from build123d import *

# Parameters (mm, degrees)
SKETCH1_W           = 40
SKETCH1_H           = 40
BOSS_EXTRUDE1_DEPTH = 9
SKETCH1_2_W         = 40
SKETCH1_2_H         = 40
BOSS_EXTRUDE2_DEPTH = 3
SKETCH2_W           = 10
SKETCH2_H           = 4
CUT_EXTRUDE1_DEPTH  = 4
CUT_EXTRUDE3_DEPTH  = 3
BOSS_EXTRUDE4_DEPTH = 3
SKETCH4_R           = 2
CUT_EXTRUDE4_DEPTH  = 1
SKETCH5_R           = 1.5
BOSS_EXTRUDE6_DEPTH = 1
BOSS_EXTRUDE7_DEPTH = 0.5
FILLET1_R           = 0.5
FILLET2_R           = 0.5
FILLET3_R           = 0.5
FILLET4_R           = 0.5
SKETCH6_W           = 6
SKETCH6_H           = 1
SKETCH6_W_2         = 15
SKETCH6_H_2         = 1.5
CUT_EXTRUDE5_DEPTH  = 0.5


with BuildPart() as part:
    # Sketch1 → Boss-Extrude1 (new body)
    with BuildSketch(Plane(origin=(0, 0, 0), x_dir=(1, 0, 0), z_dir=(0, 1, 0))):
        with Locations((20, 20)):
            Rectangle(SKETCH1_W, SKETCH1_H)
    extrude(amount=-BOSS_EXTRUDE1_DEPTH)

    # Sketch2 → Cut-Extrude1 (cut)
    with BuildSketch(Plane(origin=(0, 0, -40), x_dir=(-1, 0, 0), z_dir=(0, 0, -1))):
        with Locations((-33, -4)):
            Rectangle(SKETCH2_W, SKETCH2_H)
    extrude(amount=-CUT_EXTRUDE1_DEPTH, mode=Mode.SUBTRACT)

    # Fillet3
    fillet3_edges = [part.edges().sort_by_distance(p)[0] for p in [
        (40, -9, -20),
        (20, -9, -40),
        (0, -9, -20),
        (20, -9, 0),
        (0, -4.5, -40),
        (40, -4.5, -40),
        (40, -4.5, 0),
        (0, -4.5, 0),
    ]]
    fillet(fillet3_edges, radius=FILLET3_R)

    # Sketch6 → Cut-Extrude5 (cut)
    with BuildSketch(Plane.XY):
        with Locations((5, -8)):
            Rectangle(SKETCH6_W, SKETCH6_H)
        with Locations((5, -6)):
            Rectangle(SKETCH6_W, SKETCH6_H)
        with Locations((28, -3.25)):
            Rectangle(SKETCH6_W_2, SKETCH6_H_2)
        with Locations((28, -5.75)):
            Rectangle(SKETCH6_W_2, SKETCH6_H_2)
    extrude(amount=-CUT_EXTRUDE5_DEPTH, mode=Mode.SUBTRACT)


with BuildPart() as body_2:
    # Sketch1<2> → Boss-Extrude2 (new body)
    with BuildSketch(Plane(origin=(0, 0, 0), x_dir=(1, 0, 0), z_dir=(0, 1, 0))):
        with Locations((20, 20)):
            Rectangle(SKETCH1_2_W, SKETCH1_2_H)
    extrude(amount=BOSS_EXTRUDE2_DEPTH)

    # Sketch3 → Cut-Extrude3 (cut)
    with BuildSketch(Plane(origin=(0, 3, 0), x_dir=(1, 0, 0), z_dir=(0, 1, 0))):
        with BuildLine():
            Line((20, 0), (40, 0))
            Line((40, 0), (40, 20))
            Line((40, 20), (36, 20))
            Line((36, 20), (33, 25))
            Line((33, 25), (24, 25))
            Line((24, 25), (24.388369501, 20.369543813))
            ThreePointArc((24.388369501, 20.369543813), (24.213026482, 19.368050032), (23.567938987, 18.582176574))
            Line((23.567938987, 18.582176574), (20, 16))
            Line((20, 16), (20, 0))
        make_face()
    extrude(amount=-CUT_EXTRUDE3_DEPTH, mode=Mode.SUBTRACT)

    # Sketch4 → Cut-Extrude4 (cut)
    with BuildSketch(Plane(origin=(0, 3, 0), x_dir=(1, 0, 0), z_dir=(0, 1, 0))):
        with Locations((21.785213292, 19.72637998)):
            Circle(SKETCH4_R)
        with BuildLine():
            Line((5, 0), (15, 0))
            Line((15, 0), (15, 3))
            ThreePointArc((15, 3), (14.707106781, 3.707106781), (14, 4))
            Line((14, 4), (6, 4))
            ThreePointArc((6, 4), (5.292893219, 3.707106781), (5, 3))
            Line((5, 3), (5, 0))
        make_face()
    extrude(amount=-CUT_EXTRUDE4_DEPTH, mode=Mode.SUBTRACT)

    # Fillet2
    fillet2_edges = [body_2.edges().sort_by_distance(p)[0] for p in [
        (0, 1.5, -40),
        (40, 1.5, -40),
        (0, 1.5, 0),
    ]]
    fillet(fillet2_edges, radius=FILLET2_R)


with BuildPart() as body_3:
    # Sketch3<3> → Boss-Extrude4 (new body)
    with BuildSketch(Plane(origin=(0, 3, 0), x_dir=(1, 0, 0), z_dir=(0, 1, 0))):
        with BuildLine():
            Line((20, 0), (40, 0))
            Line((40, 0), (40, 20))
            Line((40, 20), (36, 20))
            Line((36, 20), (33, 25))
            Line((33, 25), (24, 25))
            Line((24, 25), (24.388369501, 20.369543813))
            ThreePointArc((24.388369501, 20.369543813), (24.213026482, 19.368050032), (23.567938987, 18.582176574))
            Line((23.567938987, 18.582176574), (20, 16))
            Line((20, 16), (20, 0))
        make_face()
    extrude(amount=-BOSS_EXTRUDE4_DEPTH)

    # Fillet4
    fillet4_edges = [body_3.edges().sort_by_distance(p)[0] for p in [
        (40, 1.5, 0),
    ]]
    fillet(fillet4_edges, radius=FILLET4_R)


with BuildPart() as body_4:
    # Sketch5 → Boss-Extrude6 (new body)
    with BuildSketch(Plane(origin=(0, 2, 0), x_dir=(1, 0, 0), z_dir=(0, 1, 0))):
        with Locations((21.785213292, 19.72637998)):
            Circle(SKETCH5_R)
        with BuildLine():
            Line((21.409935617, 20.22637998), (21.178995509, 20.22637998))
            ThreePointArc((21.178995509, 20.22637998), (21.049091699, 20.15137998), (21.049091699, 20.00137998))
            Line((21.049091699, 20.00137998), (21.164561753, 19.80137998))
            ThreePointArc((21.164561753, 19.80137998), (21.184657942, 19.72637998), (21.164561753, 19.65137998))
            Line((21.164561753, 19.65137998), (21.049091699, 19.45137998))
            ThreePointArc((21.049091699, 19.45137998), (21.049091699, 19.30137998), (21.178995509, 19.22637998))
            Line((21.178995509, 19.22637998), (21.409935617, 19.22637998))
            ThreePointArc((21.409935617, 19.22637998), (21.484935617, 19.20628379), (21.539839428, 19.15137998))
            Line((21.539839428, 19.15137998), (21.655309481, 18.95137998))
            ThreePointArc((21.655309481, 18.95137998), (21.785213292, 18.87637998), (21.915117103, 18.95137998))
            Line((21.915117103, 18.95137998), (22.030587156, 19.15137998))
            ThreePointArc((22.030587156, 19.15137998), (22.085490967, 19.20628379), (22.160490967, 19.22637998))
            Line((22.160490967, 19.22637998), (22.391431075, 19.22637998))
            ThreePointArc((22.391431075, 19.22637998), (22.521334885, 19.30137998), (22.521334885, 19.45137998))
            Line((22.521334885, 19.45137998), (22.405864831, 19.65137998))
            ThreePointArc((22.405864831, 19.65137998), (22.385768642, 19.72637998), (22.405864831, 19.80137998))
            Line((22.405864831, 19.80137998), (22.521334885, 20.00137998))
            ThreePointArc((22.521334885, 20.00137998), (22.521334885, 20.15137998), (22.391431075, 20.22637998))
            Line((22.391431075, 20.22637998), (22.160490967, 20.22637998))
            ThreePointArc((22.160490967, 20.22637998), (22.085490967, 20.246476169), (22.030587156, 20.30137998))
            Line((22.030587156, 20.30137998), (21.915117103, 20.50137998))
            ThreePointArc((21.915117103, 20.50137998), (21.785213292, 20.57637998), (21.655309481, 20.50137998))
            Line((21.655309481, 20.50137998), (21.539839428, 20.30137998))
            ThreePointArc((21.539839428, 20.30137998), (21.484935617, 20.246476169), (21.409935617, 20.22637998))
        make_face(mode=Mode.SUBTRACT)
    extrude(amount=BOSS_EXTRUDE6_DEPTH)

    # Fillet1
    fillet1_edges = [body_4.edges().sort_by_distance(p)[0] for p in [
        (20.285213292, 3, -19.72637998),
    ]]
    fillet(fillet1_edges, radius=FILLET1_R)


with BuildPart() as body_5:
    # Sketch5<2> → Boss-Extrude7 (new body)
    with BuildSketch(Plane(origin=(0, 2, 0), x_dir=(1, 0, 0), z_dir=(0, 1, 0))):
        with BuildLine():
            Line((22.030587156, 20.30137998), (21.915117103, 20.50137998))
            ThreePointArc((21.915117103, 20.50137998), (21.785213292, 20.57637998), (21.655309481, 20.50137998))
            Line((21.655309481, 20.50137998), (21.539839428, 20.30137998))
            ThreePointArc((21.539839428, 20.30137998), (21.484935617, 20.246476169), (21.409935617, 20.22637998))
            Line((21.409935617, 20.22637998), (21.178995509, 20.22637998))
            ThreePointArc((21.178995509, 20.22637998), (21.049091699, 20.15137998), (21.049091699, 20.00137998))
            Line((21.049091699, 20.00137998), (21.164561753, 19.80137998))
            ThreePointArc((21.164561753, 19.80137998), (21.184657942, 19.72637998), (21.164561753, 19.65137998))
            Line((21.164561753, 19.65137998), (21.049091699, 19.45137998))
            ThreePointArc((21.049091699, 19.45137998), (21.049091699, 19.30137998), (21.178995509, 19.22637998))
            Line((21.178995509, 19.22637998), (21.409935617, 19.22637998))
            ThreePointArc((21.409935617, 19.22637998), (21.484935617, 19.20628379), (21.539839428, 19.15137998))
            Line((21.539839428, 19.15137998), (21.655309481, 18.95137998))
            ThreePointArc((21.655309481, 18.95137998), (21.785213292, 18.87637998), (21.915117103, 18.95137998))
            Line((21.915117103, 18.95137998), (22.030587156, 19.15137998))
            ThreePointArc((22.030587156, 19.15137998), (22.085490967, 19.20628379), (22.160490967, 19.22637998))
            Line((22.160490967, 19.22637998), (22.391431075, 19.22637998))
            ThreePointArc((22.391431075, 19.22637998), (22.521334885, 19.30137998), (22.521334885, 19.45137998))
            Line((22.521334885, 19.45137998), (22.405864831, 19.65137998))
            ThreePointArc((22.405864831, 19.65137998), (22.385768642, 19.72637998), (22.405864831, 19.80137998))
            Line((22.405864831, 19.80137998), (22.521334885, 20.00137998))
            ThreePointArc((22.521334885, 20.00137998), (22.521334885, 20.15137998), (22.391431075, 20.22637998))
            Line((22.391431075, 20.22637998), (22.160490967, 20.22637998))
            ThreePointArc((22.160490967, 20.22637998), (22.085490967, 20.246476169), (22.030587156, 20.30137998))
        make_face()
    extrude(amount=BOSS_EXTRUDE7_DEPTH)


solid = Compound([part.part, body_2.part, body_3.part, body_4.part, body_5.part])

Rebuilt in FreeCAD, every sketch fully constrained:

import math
import FreeCAD as App
import Part
import Sketcher
Q = App.Units.Quantity


def edges_at(feature, points):
    """Names of the edges that pass closest to the given points."""
    edges = feature.Shape.Edges
    near = lambda p: min(range(len(edges)), key=lambda i: edges[i].distToShape(Part.Vertex(*p))[0])
    return sorted({f"Edge{near(p) + 1}" for p in points})

doc = App.newDocument("Part")
body = doc.addObject("PartDesign::Body", "Body")

sketch1 = doc.addObject("Sketcher::SketchObject", "Sketch")
body.addObject(sketch1)
sketch1.AttachmentSupport = (doc.XZ_Plane, [""])
sketch1.MapMode = "FlatFace"
sketch1.addGeometry([
    Part.LineSegment(App.Vector(0, -40, 0), App.Vector(0, 0, 0)),
    Part.LineSegment(App.Vector(0, 0, 0), App.Vector(40, 0, 0)),
    Part.LineSegment(App.Vector(40, 0, 0), App.Vector(40, -40, 0)),
    Part.LineSegment(App.Vector(40, -40, 0), App.Vector(0, -40, 0)),
], False)
sketch1.addConstraint([
    Sketcher.Constraint("Coincident", 0, 2, 1, 1),
    Sketcher.Constraint("Coincident", 1, 2, 2, 1),
    Sketcher.Constraint("Coincident", 2, 2, 3, 1),
    Sketcher.Constraint("Coincident", 3, 2, 0, 1),
    Sketcher.Constraint("Vertical", 0),
    Sketcher.Constraint("Horizontal", 1),
    Sketcher.Constraint("Vertical", 2),
    Sketcher.Constraint("Horizontal", 3),
    Sketcher.Constraint("Coincident", 0, 2, -1, 1),
    Sketcher.Constraint("Equal", 3, 0),
    Sketcher.Constraint("DistanceX", 1, 1, 1, 2, Q("40 mm")),
])
pad1 = doc.addObject("PartDesign::Pad", "Pad")
body.addObject(pad1)
pad1.Profile = sketch1
pad1.Length = 9

sketch2 = doc.addObject("Sketcher::SketchObject", "Sketch001")
body.addObject(sketch2)
sketch2.AttachmentSupport = (doc.XY_Plane, [""])
sketch2.MapMode = "FlatFace"
sketch2.AttachmentOffset = App.Placement(App.Vector(0, 0, -40), App.Rotation())
sketch2.addGeometry([
    Part.LineSegment(App.Vector(38, -2, 0), App.Vector(38, -6, 0)),
    Part.LineSegment(App.Vector(38, -6, 0), App.Vector(28, -6, 0)),
    Part.LineSegment(App.Vector(28, -6, 0), App.Vector(28, -2, 0)),
    Part.LineSegment(App.Vector(28, -2, 0), App.Vector(38, -2, 0)),
], False)
sketch2.addConstraint([
    Sketcher.Constraint("Coincident", 0, 2, 1, 1),
    Sketcher.Constraint("Coincident", 1, 2, 2, 1),
    Sketcher.Constraint("Coincident", 2, 2, 3, 1),
    Sketcher.Constraint("Coincident", 3, 2, 0, 1),
    Sketcher.Constraint("Vertical", 0),
    Sketcher.Constraint("Horizontal", 1),
    Sketcher.Constraint("Vertical", 2),
    Sketcher.Constraint("Horizontal", 3),
    Sketcher.Constraint("DistanceX", 1, 2, 1, 1, Q("10 mm")),
    Sketcher.Constraint("DistanceY", 0, 2, 0, 1, Q("4 mm")),
    Sketcher.Constraint("DistanceX", -1, 1, 0, 2, Q("38 mm")),
    Sketcher.Constraint("DistanceY", 0, 2, -1, 1, Q("6 mm")),
])
pocket1 = doc.addObject("PartDesign::Pocket", "Pocket")
body.addObject(pocket1)
pocket1.Profile = sketch2
pocket1.Length = 4
pocket1.Reversed = True
doc.recompute()

fillet = doc.addObject("PartDesign::Fillet", "Fillet")
body.addObject(fillet)
fillet.Base = (pocket1, edges_at(pocket1, [
    (40, -9, -20),
    (20, -9, -40),
    (0, -9, -20),
    (20, -9, 0),
    (0, -4.5, -40),
    (40, -4.5, -40),
    (40, -4.5, 0),
    (0, -4.5, 0),
]))
fillet.Radius = 0.5

sketch3 = doc.addObject("Sketcher::SketchObject", "Sketch002")
body.addObject(sketch3)
sketch3.AttachmentSupport = (doc.XY_Plane, [""])
sketch3.MapMode = "FlatFace"
sketch3.addGeometry([
    Part.LineSegment(App.Vector(2, -7.5, 0), App.Vector(2, -8.5, 0)),
    Part.LineSegment(App.Vector(2, -8.5, 0), App.Vector(8, -8.5, 0)),
    Part.LineSegment(App.Vector(8, -8.5, 0), App.Vector(8, -7.5, 0)),
    Part.LineSegment(App.Vector(8, -7.5, 0), App.Vector(2, -7.5, 0)),
    Part.LineSegment(App.Vector(2, -5.5, 0), App.Vector(2, -6.5, 0)),
    Part.LineSegment(App.Vector(2, -6.5, 0), App.Vector(8, -6.5, 0)),
    Part.LineSegment(App.Vector(8, -6.5, 0), App.Vector(8, -5.5, 0)),
    Part.LineSegment(App.Vector(8, -5.5, 0), App.Vector(2, -5.5, 0)),
    Part.LineSegment(App.Vector(20.5, -2.5, 0), App.Vector(20.5, -4, 0)),
    Part.LineSegment(App.Vector(20.5, -4, 0), App.Vector(35.5, -4, 0)),
    Part.LineSegment(App.Vector(35.5, -4, 0), App.Vector(35.5, -2.5, 0)),
    Part.LineSegment(App.Vector(35.5, -2.5, 0), App.Vector(20.5, -2.5, 0)),
    Part.LineSegment(App.Vector(20.5, -5, 0), App.Vector(20.5, -6.5, 0)),
    Part.LineSegment(App.Vector(20.5, -6.5, 0), App.Vector(35.5, -6.5, 0)),
    Part.LineSegment(App.Vector(35.5, -6.5, 0), App.Vector(35.5, -5, 0)),
    Part.LineSegment(App.Vector(35.5, -5, 0), App.Vector(20.5, -5, 0)),
], False)
sketch3.addConstraint([
    Sketcher.Constraint("Coincident", 0, 2, 1, 1),
    Sketcher.Constraint("Coincident", 1, 2, 2, 1),
    Sketcher.Constraint("Coincident", 2, 2, 3, 1),
    Sketcher.Constraint("Coincident", 3, 2, 0, 1),
    Sketcher.Constraint("Coincident", 4, 2, 5, 1),
    Sketcher.Constraint("Coincident", 5, 2, 6, 1),
    Sketcher.Constraint("Coincident", 6, 2, 7, 1),
    Sketcher.Constraint("Coincident", 7, 2, 4, 1),
    Sketcher.Constraint("Coincident", 8, 2, 9, 1),
    Sketcher.Constraint("Coincident", 9, 2, 10, 1),
    Sketcher.Constraint("Coincident", 10, 2, 11, 1),
    Sketcher.Constraint("Coincident", 11, 2, 8, 1),
    Sketcher.Constraint("Coincident", 12, 2, 13, 1),
    Sketcher.Constraint("Coincident", 13, 2, 14, 1),
    Sketcher.Constraint("Coincident", 14, 2, 15, 1),
    Sketcher.Constraint("Coincident", 15, 2, 12, 1),
    Sketcher.Constraint("Vertical", 0),
    Sketcher.Constraint("Horizontal", 1),
    Sketcher.Constraint("Vertical", 2),
    Sketcher.Constraint("Horizontal", 3),
    Sketcher.Constraint("Vertical", 4),
    Sketcher.Constraint("Horizontal", 5),
    Sketcher.Constraint("Vertical", 6),
    Sketcher.Constraint("Horizontal", 7),
    Sketcher.Constraint("Vertical", 8),
    Sketcher.Constraint("Horizontal", 9),
    Sketcher.Constraint("Vertical", 10),
    Sketcher.Constraint("Horizontal", 11),
    Sketcher.Constraint("Vertical", 12),
    Sketcher.Constraint("Horizontal", 13),
    Sketcher.Constraint("Vertical", 14),
    Sketcher.Constraint("Horizontal", 15),
    Sketcher.Constraint("Horizontal", 5, 2, 12, 2),
    Sketcher.Constraint("Vertical", 3, 2, 4, 2),
    Sketcher.Constraint("Vertical", 2, 2, 5, 2),
    Sketcher.Constraint("Vertical", 11, 2, 12, 2),
    Sketcher.Constraint("Vertical", 10, 2, 13, 2),
    Sketcher.Constraint("Equal", 2, 4),
    Sketcher.Constraint("Equal", 10, 12),
    Sketcher.Constraint("DistanceX", 1, 1, 1, 2, Q("6 mm")),
    Sketcher.Constraint("DistanceX", 9, 1, 9, 2, Q("15 mm")),
    Sketcher.Constraint("DistanceY", 0, 2, 0, 1, Q("1 mm")),
    Sketcher.Constraint("DistanceY", 8, 2, 8, 1, Q("1.5 mm")),
    Sketcher.Constraint("DistanceX", -1, 1, 0, 2, Q("2 mm")),
    Sketcher.Constraint("DistanceY", 8, 2, -1, 1, Q("4 mm")),
    Sketcher.Constraint("DistanceY", 14, 2, -1, 1, Q("5 mm")),
    Sketcher.Constraint("DistanceY", 3, 2, 4, 2, Q("1 mm")),
    Sketcher.Constraint("DistanceX", -1, 1, 8, 2, Q("20.5 mm")),
])
pocket2 = doc.addObject("PartDesign::Pocket", "Pocket001")
body.addObject(pocket2)
pocket2.Profile = sketch3
pocket2.Length = 0.5
body2 = doc.addObject("PartDesign::Body", "Body001")

sketch4 = doc.addObject("Sketcher::SketchObject", "Sketch003")
body2.addObject(sketch4)
sketch4.AttachmentSupport = (doc.getObject("XZ_Plane001"), [""])
sketch4.MapMode = "FlatFace"
sketch4.addGeometry([
    Part.LineSegment(App.Vector(0, -40, 0), App.Vector(0, 0, 0)),
    Part.LineSegment(App.Vector(0, 0, 0), App.Vector(40, 0, 0)),
    Part.LineSegment(App.Vector(40, 0, 0), App.Vector(40, -40, 0)),
    Part.LineSegment(App.Vector(40, -40, 0), App.Vector(0, -40, 0)),
], False)
sketch4.addConstraint([
    Sketcher.Constraint("Coincident", 0, 2, 1, 1),
    Sketcher.Constraint("Coincident", 1, 2, 2, 1),
    Sketcher.Constraint("Coincident", 2, 2, 3, 1),
    Sketcher.Constraint("Coincident", 3, 2, 0, 1),
    Sketcher.Constraint("Vertical", 0),
    Sketcher.Constraint("Horizontal", 1),
    Sketcher.Constraint("Vertical", 2),
    Sketcher.Constraint("Horizontal", 3),
    Sketcher.Constraint("Coincident", 0, 2, -1, 1),
    Sketcher.Constraint("Equal", 3, 0),
    Sketcher.Constraint("DistanceX", 1, 1, 1, 2, Q("40 mm")),
])
pad2 = doc.addObject("PartDesign::Pad", "Pad001")
body2.addObject(pad2)
pad2.Profile = sketch4
pad2.Length = 3
pad2.Reversed = True

sketch5 = doc.addObject("Sketcher::SketchObject", "Sketch004")
body2.addObject(sketch5)
sketch5.AttachmentSupport = (doc.getObject("XZ_Plane001"), [""])
sketch5.MapMode = "FlatFace"
sketch5.AttachmentOffset = App.Placement(App.Vector(0, 0, -3), App.Rotation())
sketch5.addGeometry([
    Part.LineSegment(App.Vector(20, 0, 0), App.Vector(40, 0, 0)),
    Part.LineSegment(App.Vector(40, 0, 0), App.Vector(40, -20, 0)),
    Part.LineSegment(App.Vector(40, -20, 0), App.Vector(36, -20, 0)),
    Part.LineSegment(App.Vector(36, -20, 0), App.Vector(33, -25, 0)),
    Part.LineSegment(App.Vector(33, -25, 0), App.Vector(24, -25, 0)),
    Part.LineSegment(App.Vector(24, -25, 0), App.Vector(24.38837, -20.369544, 0)),
    Part.ArcOfCircle(Part.Circle(App.Vector(22.395367, -20.202385, 0), App.Vector(0, 0, 1), 2), math.radians(-4.794338), math.radians(54.106117)),
    Part.LineSegment(App.Vector(23.567939, -18.582177, 0), App.Vector(20, -16, 0)),
    Part.LineSegment(App.Vector(20, -16, 0), App.Vector(20, 0, 0)),
], False)
sketch5.addConstraint([
    Sketcher.Constraint("Coincident", 0, 2, 1, 1),
    Sketcher.Constraint("Coincident", 1, 2, 2, 1),
    Sketcher.Constraint("Coincident", 2, 2, 3, 1),
    Sketcher.Constraint("Coincident", 3, 2, 4, 1),
    Sketcher.Constraint("Coincident", 4, 2, 5, 1),
    Sketcher.Constraint("Tangent", 5, 2, 6, 1),
    Sketcher.Constraint("Tangent", 6, 2, 7, 1),
    Sketcher.Constraint("Coincident", 7, 2, 8, 1),
    Sketcher.Constraint("Coincident", 8, 2, 0, 1),
    Sketcher.Constraint("Horizontal", 0),
    Sketcher.Constraint("Vertical", 1),
    Sketcher.Constraint("Horizontal", 2),
    Sketcher.Constraint("Horizontal", 4),
    Sketcher.Constraint("Vertical", 8),
    Sketcher.Constraint("PointOnObject", 0, 2, -1),
    Sketcher.Constraint("Equal", 0, 1),
    Sketcher.Constraint("Radius", 6, Q("2 mm")),
    Sketcher.Constraint("DistanceX", 0, 1, 0, 2, Q("20 mm")),
    Sketcher.Constraint("DistanceX", 2, 2, 2, 1, Q("4 mm")),
    Sketcher.Constraint("DistanceX", 4, 2, 4, 1, Q("9 mm")),
    Sketcher.Constraint("DistanceY", 8, 1, 8, 2, Q("16 mm")),
    Sketcher.Constraint("DistanceX", -1, 1, 0, 2, Q("40 mm")),
    Sketcher.Constraint("DistanceX", -1, 1, 3, 2, Q("33 mm")),
    Sketcher.Constraint("DistanceY", 3, 2, -1, 1, Q("25 mm")),
    Sketcher.Constraint("DistanceX", -1, 1, 5, 2, Q("24.38837 mm")),
    Sketcher.Constraint("DistanceX", -1, 1, 6, 2, Q("23.567939 mm")),
])
pocket3 = doc.addObject("PartDesign::Pocket", "Pocket002")
body2.addObject(pocket3)
pocket3.Profile = sketch5
pocket3.Length = 3
pocket3.Reversed = True

sketch6 = doc.addObject("Sketcher::SketchObject", "Sketch005")
body2.addObject(sketch6)
sketch6.AttachmentSupport = (doc.getObject("XZ_Plane001"), [""])
sketch6.MapMode = "FlatFace"
sketch6.AttachmentOffset = App.Placement(App.Vector(0, 0, -3), App.Rotation())
sketch6.addGeometry([
    Part.Circle(App.Vector(21.785213, -19.72638, 0), App.Vector(0, 0, 1), 2),
    Part.LineSegment(App.Vector(5, 0, 0), App.Vector(15, 0, 0)),
    Part.LineSegment(App.Vector(15, 0, 0), App.Vector(15, -3, 0)),
    Part.ArcOfCircle(Part.Circle(App.Vector(14, -3, 0), App.Vector(0, 0, 1), 1), math.radians(-90), math.radians(0)),
    Part.LineSegment(App.Vector(14, -4, 0), App.Vector(6, -4, 0)),
    Part.ArcOfCircle(Part.Circle(App.Vector(6, -3, 0), App.Vector(0, 0, 1), 1), math.radians(-180), math.radians(-90)),
    Part.LineSegment(App.Vector(5, -3, 0), App.Vector(5, 0, 0)),
], False)
sketch6.addConstraint([
    Sketcher.Constraint("Coincident", 1, 2, 2, 1),
    Sketcher.Constraint("Tangent", 2, 2, 3, 2),
    Sketcher.Constraint("Tangent", 3, 1, 4, 1),
    Sketcher.Constraint("Tangent", 4, 2, 5, 2),
    Sketcher.Constraint("Tangent", 5, 1, 6, 1),
    Sketcher.Constraint("Coincident", 6, 2, 1, 1),
    Sketcher.Constraint("Horizontal", 1),
    Sketcher.Constraint("Vertical", 2),
    Sketcher.Constraint("Horizontal", 4),
    Sketcher.Constraint("Vertical", 6),
    Sketcher.Constraint("Equal", 3, 5),
    Sketcher.Constraint("PointOnObject", 1, 2, -1),
    Sketcher.Constraint("Diameter", 0, Q("4 mm")),
    Sketcher.Constraint("Radius", 3, Q("1 mm")),
    Sketcher.Constraint("DistanceX", 1, 1, 1, 2, Q("10 mm")),
    Sketcher.Constraint("DistanceY", 2, 2, 2, 1, Q("3 mm")),
    Sketcher.Constraint("DistanceX", -1, 1, 3, 3, Q("14 mm")),
    Sketcher.Constraint("DistanceY", 0, 3, -1, 1, Q("19.72638 mm")),
    Sketcher.Constraint("DistanceX", -1, 1, 0, 3, Q("21.785213 mm")),
])
pocket4 = doc.addObject("PartDesign::Pocket", "Pocket003")
body2.addObject(pocket4)
pocket4.Profile = sketch6
pocket4.Length = 1
pocket4.Reversed = True
doc.recompute()

fillet2 = doc.addObject("PartDesign::Fillet", "Fillet001")
body2.addObject(fillet2)
fillet2.Base = (pocket4, edges_at(pocket4, [(0, 1.5, -40), (40, 1.5, -40), (0, 1.5, 0)]))
fillet2.Radius = 0.5
body3 = doc.addObject("PartDesign::Body", "Body002")

sketch7 = doc.addObject("Sketcher::SketchObject", "Sketch006")
body3.addObject(sketch7)
sketch7.AttachmentSupport = (doc.getObject("XZ_Plane002"), [""])
sketch7.MapMode = "FlatFace"
sketch7.AttachmentOffset = App.Placement(App.Vector(0, 0, -3), App.Rotation())
sketch7.addGeometry([
    Part.LineSegment(App.Vector(20, 0, 0), App.Vector(40, 0, 0)),
    Part.LineSegment(App.Vector(40, 0, 0), App.Vector(40, -20, 0)),
    Part.LineSegment(App.Vector(40, -20, 0), App.Vector(36, -20, 0)),
    Part.LineSegment(App.Vector(36, -20, 0), App.Vector(33, -25, 0)),
    Part.LineSegment(App.Vector(33, -25, 0), App.Vector(24, -25, 0)),
    Part.LineSegment(App.Vector(24, -25, 0), App.Vector(24.38837, -20.369544, 0)),
    Part.ArcOfCircle(Part.Circle(App.Vector(22.395367, -20.202385, 0), App.Vector(0, 0, 1), 2), math.radians(-4.794338), math.radians(54.106117)),
    Part.LineSegment(App.Vector(23.567939, -18.582177, 0), App.Vector(20, -16, 0)),
    Part.LineSegment(App.Vector(20, -16, 0), App.Vector(20, 0, 0)),
], False)
sketch7.addConstraint([
    Sketcher.Constraint("Coincident", 0, 2, 1, 1),
    Sketcher.Constraint("Coincident", 1, 2, 2, 1),
    Sketcher.Constraint("Coincident", 2, 2, 3, 1),
    Sketcher.Constraint("Coincident", 3, 2, 4, 1),
    Sketcher.Constraint("Coincident", 4, 2, 5, 1),
    Sketcher.Constraint("Tangent", 5, 2, 6, 1),
    Sketcher.Constraint("Tangent", 6, 2, 7, 1),
    Sketcher.Constraint("Coincident", 7, 2, 8, 1),
    Sketcher.Constraint("Coincident", 8, 2, 0, 1),
    Sketcher.Constraint("Horizontal", 0),
    Sketcher.Constraint("Vertical", 1),
    Sketcher.Constraint("Horizontal", 2),
    Sketcher.Constraint("Horizontal", 4),
    Sketcher.Constraint("Vertical", 8),
    Sketcher.Constraint("PointOnObject", 0, 2, -1),
    Sketcher.Constraint("Equal", 0, 1),
    Sketcher.Constraint("Radius", 6, Q("2 mm")),
    Sketcher.Constraint("DistanceX", 0, 1, 0, 2, Q("20 mm")),
    Sketcher.Constraint("DistanceX", 2, 2, 2, 1, Q("4 mm")),
    Sketcher.Constraint("DistanceX", 4, 2, 4, 1, Q("9 mm")),
    Sketcher.Constraint("DistanceY", 8, 1, 8, 2, Q("16 mm")),
    Sketcher.Constraint("DistanceX", -1, 1, 0, 2, Q("40 mm")),
    Sketcher.Constraint("DistanceX", -1, 1, 3, 2, Q("33 mm")),
    Sketcher.Constraint("DistanceY", 3, 2, -1, 1, Q("25 mm")),
    Sketcher.Constraint("DistanceX", -1, 1, 5, 2, Q("24.38837 mm")),
    Sketcher.Constraint("DistanceX", -1, 1, 6, 2, Q("23.567939 mm")),
])
pad3 = doc.addObject("PartDesign::Pad", "Pad002")
body3.addObject(pad3)
pad3.Profile = sketch7
pad3.Length = 3
doc.recompute()

fillet3 = doc.addObject("PartDesign::Fillet", "Fillet002")
body3.addObject(fillet3)
fillet3.Base = (pad3, edges_at(pad3, [(40, 1.5, 0)]))
fillet3.Radius = 0.5
body4 = doc.addObject("PartDesign::Body", "Body003")

sketch8 = doc.addObject("Sketcher::SketchObject", "Sketch007")
body4.addObject(sketch8)
sketch8.AttachmentSupport = (doc.getObject("XZ_Plane003"), [""])
sketch8.MapMode = "FlatFace"
sketch8.AttachmentOffset = App.Placement(App.Vector(0, 0, -2), App.Rotation())
sketch8.addGeometry([
    Part.Circle(App.Vector(21.785213, -19.72638, 0), App.Vector(0, 0, 1), 1.5),
    Part.LineSegment(App.Vector(21.178996, -20.22638, 0), App.Vector(21.409936, -20.22638, 0)),
    Part.ArcOfCircle(Part.Circle(App.Vector(21.409936, -20.37638, 0), App.Vector(0, 0, 1), 0.15), math.radians(30), math.radians(90)),
    Part.LineSegment(App.Vector(21.539839, -20.30138, 0), App.Vector(21.655309, -20.50138, 0)),
    Part.ArcOfCircle(Part.Circle(App.Vector(21.785213, -20.42638, 0), App.Vector(0, 0, 1), 0.15), math.radians(-150), math.radians(-30)),
    Part.LineSegment(App.Vector(21.915117, -20.50138, 0), App.Vector(22.030587, -20.30138, 0)),
    Part.ArcOfCircle(Part.Circle(App.Vector(22.160491, -20.37638, 0), App.Vector(0, 0, 1), 0.15), math.radians(90), math.radians(150)),
    Part.LineSegment(App.Vector(22.160491, -20.22638, 0), App.Vector(22.391431, -20.22638, 0)),
    Part.ArcOfCircle(Part.Circle(App.Vector(22.391431, -20.07638, 0), App.Vector(0, 0, 1), 0.15), math.radians(-90), math.radians(30)),
    Part.LineSegment(App.Vector(22.521335, -20.00138, 0), App.Vector(22.405865, -19.80138, 0)),
    Part.ArcOfCircle(Part.Circle(App.Vector(22.535769, -19.72638, 0), App.Vector(0, 0, 1), 0.15), math.radians(150.000001), math.radians(209.999999)),
    Part.LineSegment(App.Vector(22.405865, -19.65138, 0), App.Vector(22.521335, -19.45138, 0)),
    Part.ArcOfCircle(Part.Circle(App.Vector(22.391431, -19.37638, 0), App.Vector(0, 0, 1), 0.15), math.radians(-30), math.radians(90)),
    Part.LineSegment(App.Vector(22.391431, -19.22638, 0), App.Vector(22.160491, -19.22638, 0)),
    Part.ArcOfCircle(Part.Circle(App.Vector(22.160491, -19.07638, 0), App.Vector(0, 0, 1), 0.15), math.radians(-149.999999), math.radians(-90.000001)),
    Part.LineSegment(App.Vector(22.030587, -19.15138, 0), App.Vector(21.915117, -18.95138, 0)),
    Part.ArcOfCircle(Part.Circle(App.Vector(21.785213, -19.02638, 0), App.Vector(0, 0, 1), 0.15), math.radians(30), math.radians(150)),
    Part.LineSegment(App.Vector(21.655309, -18.95138, 0), App.Vector(21.539839, -19.15138, 0)),
    Part.ArcOfCircle(Part.Circle(App.Vector(21.409936, -19.07638, 0), App.Vector(0, 0, 1), 0.15), math.radians(-89.999999), math.radians(-30.000001)),
    Part.LineSegment(App.Vector(21.409936, -19.22638, 0), App.Vector(21.178996, -19.22638, 0)),
    Part.ArcOfCircle(Part.Circle(App.Vector(21.178996, -19.37638, 0), App.Vector(0, 0, 1), 0.15), math.radians(90), math.radians(210)),
    Part.LineSegment(App.Vector(21.049092, -19.45138, 0), App.Vector(21.164562, -19.65138, 0)),
    Part.ArcOfCircle(Part.Circle(App.Vector(21.034658, -19.72638, 0), App.Vector(0, 0, 1), 0.15), math.radians(-29.999999), math.radians(29.999999)),
    Part.LineSegment(App.Vector(21.164562, -19.80138, 0), App.Vector(21.049092, -20.00138, 0)),
    Part.ArcOfCircle(Part.Circle(App.Vector(21.178996, -20.07638, 0), App.Vector(0, 0, 1), 0.15), math.radians(150), math.radians(270)),
], False)
sketch8.addConstraint([
    Sketcher.Constraint("Tangent", 1, 2, 2, 2),
    Sketcher.Constraint("Tangent", 2, 1, 3, 1),
    Sketcher.Constraint("Tangent", 3, 2, 4, 1),
    Sketcher.Constraint("Tangent", 4, 2, 5, 1),
    Sketcher.Constraint("Tangent", 5, 2, 6, 2),
    Sketcher.Constraint("Tangent", 6, 1, 7, 1),
    Sketcher.Constraint("Tangent", 7, 2, 8, 1),
    Sketcher.Constraint("Tangent", 8, 2, 9, 1),
    Sketcher.Constraint("Tangent", 9, 2, 10, 2),
    Sketcher.Constraint("Tangent", 10, 1, 11, 1),
    Sketcher.Constraint("Tangent", 11, 2, 12, 1),
    Sketcher.Constraint("Tangent", 12, 2, 13, 1),
    Sketcher.Constraint("Tangent", 13, 2, 14, 2),
    Sketcher.Constraint("Tangent", 14, 1, 15, 1),
    Sketcher.Constraint("Tangent", 15, 2, 16, 1),
    Sketcher.Constraint("Tangent", 16, 2, 17, 1),
    Sketcher.Constraint("Tangent", 17, 2, 18, 2),
    Sketcher.Constraint("Tangent", 18, 1, 19, 1),
    Sketcher.Constraint("Tangent", 19, 2, 20, 1),
    Sketcher.Constraint("Tangent", 20, 2, 21, 1),
    Sketcher.Constraint("Tangent", 21, 2, 22, 2),
    Sketcher.Constraint("Tangent", 22, 1, 23, 1),
    Sketcher.Constraint("Tangent", 23, 2, 24, 1),
    Sketcher.Constraint("Tangent", 24, 2, 1, 1),
    Sketcher.Constraint("Horizontal", 1),
    Sketcher.Constraint("Horizontal", 7),
    Sketcher.Constraint("Horizontal", 13),
    Sketcher.Constraint("Horizontal", 19),
    Sketcher.Constraint("Equal", 2, 4),
    Sketcher.Constraint("Equal", 4, 6),
    Sketcher.Constraint("Equal", 6, 8),
    Sketcher.Constraint("Equal", 8, 10),
    Sketcher.Constraint("Equal", 10, 12),
    Sketcher.Constraint("Equal", 12, 14),
    Sketcher.Constraint("Equal", 14, 16),
    Sketcher.Constraint("Equal", 16, 18),
    Sketcher.Constraint("Equal", 18, 20),
    Sketcher.Constraint("Equal", 20, 22),
    Sketcher.Constraint("Equal", 22, 24),
    Sketcher.Constraint("Parallel", 3, 9),
    Sketcher.Constraint("Parallel", 5, 11),
    Sketcher.Constraint("Parallel", 9, 15),
    Sketcher.Constraint("Parallel", 11, 17),
    Sketcher.Constraint("Parallel", 15, 21),
    Sketcher.Constraint("Parallel", 17, 23),
    Sketcher.Constraint("Horizontal", 2, 3, 6, 3),
    Sketcher.Constraint("Horizontal", 0, 3, 10, 3),
    Sketcher.Constraint("Horizontal", 14, 3, 18, 3),
    Sketcher.Constraint("Horizontal", 10, 3, 22, 3),
    Sketcher.Constraint("Horizontal", 3, 2, 4, 2),
    Sketcher.Constraint("Vertical", 0, 3, 4, 3),
    Sketcher.Constraint("Vertical", 8, 3, 12, 3),
    Sketcher.Constraint("Vertical", 6, 3, 14, 3),
    Sketcher.Constraint("Vertical", 4, 3, 16, 3),
    Sketcher.Constraint("Equal", 1, 7),
    Sketcher.Constraint("Equal", 5, 9),
    Sketcher.Constraint("Diameter", 0, Q("3 mm")),
    Sketcher.Constraint("Angle", 3, Q("-60 deg")),
    Sketcher.Constraint("Radius", 2, Q("0.15 mm")),
    Sketcher.Constraint("DistanceY", 6, 3, 12, 3, Q("1 mm")),
    Sketcher.Constraint("DistanceX", 1, 1, 1, 2, Q("0.23094 mm")),
    Sketcher.Constraint("DistanceY", 0, 3, -1, 1, Q("19.72638 mm")),
    Sketcher.Constraint("DistanceX", -1, 1, 6, 3, Q("22.160491 mm")),
])
pad4 = doc.addObject("PartDesign::Pad", "Pad003")
body4.addObject(pad4)
pad4.Profile = sketch8
pad4.Length = 1
pad4.Reversed = True
doc.recompute()

fillet4 = doc.addObject("PartDesign::Fillet", "Fillet003")
body4.addObject(fillet4)
fillet4.Base = (pad4, edges_at(pad4, [(20.285, 3, -19.726)]))
fillet4.Radius = 0.5
body5 = doc.addObject("PartDesign::Body", "Body004")

sketch9 = doc.addObject("Sketcher::SketchObject", "Sketch008")
body5.addObject(sketch9)
sketch9.AttachmentSupport = (doc.getObject("XZ_Plane004"), [""])
sketch9.MapMode = "FlatFace"
sketch9.AttachmentOffset = App.Placement(App.Vector(0, 0, -2), App.Rotation())
sketch9.addGeometry([
    Part.LineSegment(App.Vector(22.030587, -20.30138, 0), App.Vector(21.915117, -20.50138, 0)),
    Part.ArcOfCircle(Part.Circle(App.Vector(21.785213, -20.42638, 0), App.Vector(0, 0, 1), 0.15), math.radians(-150), math.radians(-30)),
    Part.LineSegment(App.Vector(21.655309, -20.50138, 0), App.Vector(21.539839, -20.30138, 0)),
    Part.ArcOfCircle(Part.Circle(App.Vector(21.409936, -20.37638, 0), App.Vector(0, 0, 1), 0.15), math.radians(30), math.radians(90)),
    Part.LineSegment(App.Vector(21.409936, -20.22638, 0), App.Vector(21.178996, -20.22638, 0)),
    Part.ArcOfCircle(Part.Circle(App.Vector(21.178996, -20.07638, 0), App.Vector(0, 0, 1), 0.15), math.radians(150), math.radians(270)),
    Part.LineSegment(App.Vector(21.049092, -20.00138, 0), App.Vector(21.164562, -19.80138, 0)),
    Part.ArcOfCircle(Part.Circle(App.Vector(21.034658, -19.72638, 0), App.Vector(0, 0, 1), 0.15), math.radians(-29.999999), math.radians(29.999999)),
    Part.LineSegment(App.Vector(21.164562, -19.65138, 0), App.Vector(21.049092, -19.45138, 0)),
    Part.ArcOfCircle(Part.Circle(App.Vector(21.178996, -19.37638, 0), App.Vector(0, 0, 1), 0.15), math.radians(90), math.radians(210)),
    Part.LineSegment(App.Vector(21.178996, -19.22638, 0), App.Vector(21.409936, -19.22638, 0)),
    Part.ArcOfCircle(Part.Circle(App.Vector(21.409936, -19.07638, 0), App.Vector(0, 0, 1), 0.15), math.radians(-89.999999), math.radians(-30.000001)),
    Part.LineSegment(App.Vector(21.539839, -19.15138, 0), App.Vector(21.655309, -18.95138, 0)),
    Part.ArcOfCircle(Part.Circle(App.Vector(21.785213, -19.02638, 0), App.Vector(0, 0, 1), 0.15), math.radians(30), math.radians(150)),
    Part.LineSegment(App.Vector(21.915117, -18.95138, 0), App.Vector(22.030587, -19.15138, 0)),
    Part.ArcOfCircle(Part.Circle(App.Vector(22.160491, -19.07638, 0), App.Vector(0, 0, 1), 0.15), math.radians(-149.999999), math.radians(-90.000001)),
    Part.LineSegment(App.Vector(22.160491, -19.22638, 0), App.Vector(22.391431, -19.22638, 0)),
    Part.ArcOfCircle(Part.Circle(App.Vector(22.391431, -19.37638, 0), App.Vector(0, 0, 1), 0.15), math.radians(-30), math.radians(90)),
    Part.LineSegment(App.Vector(22.521335, -19.45138, 0), App.Vector(22.405865, -19.65138, 0)),
    Part.ArcOfCircle(Part.Circle(App.Vector(22.535769, -19.72638, 0), App.Vector(0, 0, 1), 0.15), math.radians(150.000001), math.radians(209.999999)),
    Part.LineSegment(App.Vector(22.405865, -19.80138, 0), App.Vector(22.521335, -20.00138, 0)),
    Part.ArcOfCircle(Part.Circle(App.Vector(22.391431, -20.07638, 0), App.Vector(0, 0, 1), 0.15), math.radians(-90), math.radians(30)),
    Part.LineSegment(App.Vector(22.391431, -20.22638, 0), App.Vector(22.160491, -20.22638, 0)),
    Part.ArcOfCircle(Part.Circle(App.Vector(22.160491, -20.37638, 0), App.Vector(0, 0, 1), 0.15), math.radians(90), math.radians(150)),
], False)
sketch9.addConstraint([
    Sketcher.Constraint("Tangent", 0, 2, 1, 2),
    Sketcher.Constraint("Tangent", 1, 1, 2, 1),
    Sketcher.Constraint("Tangent", 2, 2, 3, 1),
    Sketcher.Constraint("Tangent", 3, 2, 4, 1),
    Sketcher.Constraint("Tangent", 4, 2, 5, 2),
    Sketcher.Constraint("Tangent", 5, 1, 6, 1),
    Sketcher.Constraint("Tangent", 6, 2, 7, 1),
    Sketcher.Constraint("Tangent", 7, 2, 8, 1),
    Sketcher.Constraint("Tangent", 8, 2, 9, 2),
    Sketcher.Constraint("Tangent", 9, 1, 10, 1),
    Sketcher.Constraint("Tangent", 10, 2, 11, 1),
    Sketcher.Constraint("Tangent", 11, 2, 12, 1),
    Sketcher.Constraint("Tangent", 12, 2, 13, 2),
    Sketcher.Constraint("Tangent", 13, 1, 14, 1),
    Sketcher.Constraint("Tangent", 14, 2, 15, 1),
    Sketcher.Constraint("Tangent", 15, 2, 16, 1),
    Sketcher.Constraint("Tangent", 16, 2, 17, 2),
    Sketcher.Constraint("Tangent", 17, 1, 18, 1),
    Sketcher.Constraint("Tangent", 18, 2, 19, 1),
    Sketcher.Constraint("Tangent", 19, 2, 20, 1),
    Sketcher.Constraint("Tangent", 20, 2, 21, 2),
    Sketcher.Constraint("Tangent", 21, 1, 22, 1),
    Sketcher.Constraint("Tangent", 22, 2, 23, 1),
    Sketcher.Constraint("Tangent", 23, 2, 0, 1),
    Sketcher.Constraint("Horizontal", 4),
    Sketcher.Constraint("Horizontal", 10),
    Sketcher.Constraint("Horizontal", 16),
    Sketcher.Constraint("Horizontal", 22),
    Sketcher.Constraint("Equal", 1, 3),
    Sketcher.Constraint("Equal", 3, 5),
    Sketcher.Constraint("Equal", 5, 7),
    Sketcher.Constraint("Equal", 7, 9),
    Sketcher.Constraint("Equal", 9, 11),
    Sketcher.Constraint("Equal", 11, 13),
    Sketcher.Constraint("Equal", 13, 15),
    Sketcher.Constraint("Equal", 15, 17),
    Sketcher.Constraint("Equal", 17, 19),
    Sketcher.Constraint("Equal", 19, 21),
    Sketcher.Constraint("Equal", 21, 23),
    Sketcher.Constraint("Parallel", 0, 6),
    Sketcher.Constraint("Parallel", 2, 8),
    Sketcher.Constraint("Parallel", 6, 12),
    Sketcher.Constraint("Parallel", 8, 14),
    Sketcher.Constraint("Parallel", 12, 18),
    Sketcher.Constraint("Parallel", 14, 20),
    Sketcher.Constraint("Horizontal", 11, 3, 15, 3),
    Sketcher.Constraint("Horizontal", 7, 3, 19, 3),
    Sketcher.Constraint("Horizontal", 5, 3, 21, 3),
    Sketcher.Constraint("Horizontal", 0, 2, 1, 1),
    Sketcher.Constraint("Vertical", 5, 3, 9, 3),
    Sketcher.Constraint("Vertical", 3, 3, 11, 3),
    Sketcher.Constraint("Vertical", 1, 3, 13, 3),
    Sketcher.Constraint("Equal", 10, 16),
    Sketcher.Constraint("Equal", 2, 6),
    Sketcher.Constraint("Angle", 0, Q("-120 deg")),
    Sketcher.Constraint("Radius", 1, Q("0.15 mm")),
    Sketcher.Constraint("DistanceY", 3, 3, 9, 3, Q("1 mm")),
    Sketcher.Constraint("DistanceX", 4, 2, 4, 1, Q("0.23094 mm")),
    Sketcher.Constraint("DistanceY", 1, 3, -1, 1, Q("20.42638 mm")),
    Sketcher.Constraint("DistanceX", -1, 1, 15, 3, Q("22.160491 mm")),
])
pad5 = doc.addObject("PartDesign::Pad", "Pad004")
body5.addObject(pad5)
pad5.Profile = sketch9
pad5.Length = 0.5
pad5.Reversed = True

doc.recompute()
